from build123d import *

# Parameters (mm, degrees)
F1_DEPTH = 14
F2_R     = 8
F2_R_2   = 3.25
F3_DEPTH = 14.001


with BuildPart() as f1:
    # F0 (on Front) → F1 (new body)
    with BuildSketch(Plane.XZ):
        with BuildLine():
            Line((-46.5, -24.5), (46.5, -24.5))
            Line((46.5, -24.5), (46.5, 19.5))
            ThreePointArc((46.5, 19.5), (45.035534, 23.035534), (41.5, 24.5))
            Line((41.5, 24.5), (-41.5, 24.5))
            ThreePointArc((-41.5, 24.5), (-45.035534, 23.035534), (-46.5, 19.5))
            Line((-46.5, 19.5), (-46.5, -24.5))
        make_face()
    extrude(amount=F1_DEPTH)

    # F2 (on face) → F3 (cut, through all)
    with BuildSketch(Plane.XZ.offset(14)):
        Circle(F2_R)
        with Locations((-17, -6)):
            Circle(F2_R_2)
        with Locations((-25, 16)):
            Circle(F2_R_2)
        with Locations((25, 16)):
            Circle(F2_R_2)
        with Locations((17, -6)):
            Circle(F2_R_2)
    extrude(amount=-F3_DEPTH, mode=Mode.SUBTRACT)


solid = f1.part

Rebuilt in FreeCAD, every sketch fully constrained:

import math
import FreeCAD as App
import Part
import Sketcher

doc = App.newDocument("Part")
body = doc.addObject("PartDesign::Body", "Body")

# Sketch on XZ plane
sketch1 = body.newObject("Sketcher::SketchObject", "Sketch")
sketch1.AttachmentSupport = (doc.getObject("XZ_Plane"), [""])
sketch1.MapMode = "FlatFace"
sketch1.addGeometry([
    Part.LineSegment(App.Vector(-46.5, -24.5, 0), App.Vector(46.5, -24.5, 0)),  # 0
    Part.LineSegment(App.Vector(46.5, -24.5, 0), App.Vector(46.5, 19.5, 0)),  # 1
    Part.ArcOfCircle(Part.Circle(App.Vector(41.5, 19.5, 0), App.Vector(0, 0, 1), 5), math.radians(-0.000004), math.radians(90.000004)),  # 2
    Part.LineSegment(App.Vector(41.5, 24.5, 0), App.Vector(-41.5, 24.5, 0)),  # 3
    Part.ArcOfCircle(Part.Circle(App.Vector(-41.5, 19.5, 0), App.Vector(0, 0, 1), 5), math.radians(89.999996), math.radians(180.000004)),  # 4
    Part.LineSegment(App.Vector(-46.5, 19.5, 0), App.Vector(-46.5, -24.5, 0)),  # 5
], False)
sketch1.addConstraint([
    Sketcher.Constraint("Coincident", 0, 2, 1, 1),
    Sketcher.Constraint("Tangent", 1, 2, 2, 1),
    Sketcher.Constraint("Tangent", 2, 2, 3, 1),
    Sketcher.Constraint("Tangent", 3, 2, 4, 1),
    Sketcher.Constraint("Tangent", 4, 2, 5, 1),
    Sketcher.Constraint("Coincident", 5, 2, 0, 1),
    Sketcher.Constraint("Horizontal", 0),
    Sketcher.Constraint("Vertical", 1),
    Sketcher.Constraint("Horizontal", 3),
    Sketcher.Constraint("Vertical", 5),
    Sketcher.Constraint("Equal", 2, 4),
    Sketcher.Constraint("Radius", 2, 5.0),
    Sketcher.Constraint("DistanceX", 0, 1, 0, 2, 93.0),
    Sketcher.Constraint("DistanceY", 1, 1, 1, 2, 44.0),
    Sketcher.Constraint("DistanceX", -1, 1, 2, 3, 41.5),
    Sketcher.Constraint("DistanceY", -1, 1, 2, 3, 19.5),
])
pad1 = body.newObject("PartDesign::Pad", "Pad")
pad1.Profile = sketch1
pad1.Length = 14

# Sketch on XZ plane
sketch2 = body.newObject("Sketcher::SketchObject", "Sketch001")
sketch2.AttachmentSupport = (doc.getObject("XZ_Plane"), [""])
sketch2.MapMode = "FlatFace"
sketch2.AttachmentOffset = App.Placement(App.Vector(0, 0, 14), App.Rotation())
sketch2.addGeometry([
    Part.Circle(App.Vector(0, 0, 0), App.Vector(0, 0, 1), 8),  # 0
    Part.Circle(App.Vector(-17, -6, 0), App.Vector(0, 0, 1), 3.25),  # 1
    Part.Circle(App.Vector(-25, 16, 0), App.Vector(0, 0, 1), 3.25),  # 2
    Part.Circle(App.Vector(25, 16, 0), App.Vector(0, 0, 1), 3.25),  # 3
    Part.Circle(App.Vector(17, -6, 0), App.Vector(0, 0, 1), 3.25),  # 4
], False)
sketch2.addConstraint([
    Sketcher.Constraint("Coincident", 0, 3, -1, 1),
    Sketcher.Constraint("Equal", 1, 2),
    Sketcher.Constraint("Equal", 2, 3),
    Sketcher.Constraint("Equal", 3, 4),
    Sketcher.Constraint("Symmetric", 2, 3, 3, 3, -2),
    Sketcher.Constraint("Symmetric", 1, 3, 4, 3, -2),
    Sketcher.Constraint("Diameter", 0, 16.0),
    Sketcher.Constraint("Diameter", 1, 6.5),
    Sketcher.Constraint("DistanceX", 1, 3, -1, 1, 17.0),
    Sketcher.Constraint("DistanceY", 1, 3, -1, 1, 6.0),
    Sketcher.Constraint("DistanceX", 2, 3, -1, 1, 25.0),
    Sketcher.Constraint("DistanceY", -1, 1, 2, 3, 16.0),
])
pocket1 = body.newObject("PartDesign::Pocket", "Pocket")
pocket1.Profile = sketch2
pocket1.Type = "ThroughAll"

doc.recompute()
